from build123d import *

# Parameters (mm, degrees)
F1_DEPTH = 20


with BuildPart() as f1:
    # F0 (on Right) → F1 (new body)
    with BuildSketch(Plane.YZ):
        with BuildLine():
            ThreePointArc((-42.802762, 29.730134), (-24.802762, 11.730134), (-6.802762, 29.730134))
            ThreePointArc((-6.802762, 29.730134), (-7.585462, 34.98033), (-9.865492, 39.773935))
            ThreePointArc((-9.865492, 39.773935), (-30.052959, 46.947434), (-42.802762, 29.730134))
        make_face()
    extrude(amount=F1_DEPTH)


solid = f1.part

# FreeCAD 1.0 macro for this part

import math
import FreeCAD as App
import Part
import Sketcher
from FreeCAD import Vector

doc = App.newDocument("Part")
params = doc.addObject("Spreadsheet::Sheet", "Params")
for row, (alias, value) in enumerate([
    ("sketch1_radius", "18 mm"),
    ("pad1_length", "20 mm"),
], start=1):
    params.set(f"A{row}", alias)
    params.set(f"B{row}", "=" + value)
    params.setAlias(f"B{row}", alias)

body = doc.addObject("PartDesign::Body", "Body")

sketch1 = body.newObject("Sketcher::SketchObject", "Sketch")
sketch1.AttachmentSupport = (doc.getObject("YZ_Plane"), [""])
sketch1.MapMode = "FlatFace"
sketch1.addGeometry([
    Part.ArcOfCircle(Part.Circle(Vector(-25, 30, 0), Vector(0, 0, 1), 18), math.radians(180), math.radians(360)),
    Part.ArcOfCircle(Part.Circle(Vector(-25, 30, 0), Vector(0, 0, 1), 18), math.radians(0), math.radians(34)),
    Part.ArcOfCircle(Part.Circle(Vector(-25, 30, 0), Vector(0, 0, 1), 18), math.radians(34), math.radians(180)),
], False)
sketch1.addConstraint([
    Sketcher.Constraint("Tangent", 0, 2, 1, 1),
    Sketcher.Constraint("Tangent", 1, 2, 2, 1),
    Sketcher.Constraint("Tangent", 2, 2, 0, 1),
    Sketcher.Constraint("Horizontal", 2, 3, 0, 2),
    Sketcher.Constraint("Horizontal", 0, 2, 2, 2),
    Sketcher.Constraint("Radius", 0, 18.0),
    Sketcher.Constraint("DistanceY", 0, 2, 1, 2, 10.043801),
    Sketcher.Constraint("DistanceY", -1, 1, 1, 3, 29.730131),
    Sketcher.Constraint("DistanceX", 1, 2, -1, 1, 9.865492),
])
sketch1.setExpression("Constraints[5]", "Params.sketch1_radius")
pad1 = body.newObject("PartDesign::Pad", "Pad")
pad1.Profile = sketch1
pad1.setExpression("Length", "Params.pad1_length")

doc.recompute()
